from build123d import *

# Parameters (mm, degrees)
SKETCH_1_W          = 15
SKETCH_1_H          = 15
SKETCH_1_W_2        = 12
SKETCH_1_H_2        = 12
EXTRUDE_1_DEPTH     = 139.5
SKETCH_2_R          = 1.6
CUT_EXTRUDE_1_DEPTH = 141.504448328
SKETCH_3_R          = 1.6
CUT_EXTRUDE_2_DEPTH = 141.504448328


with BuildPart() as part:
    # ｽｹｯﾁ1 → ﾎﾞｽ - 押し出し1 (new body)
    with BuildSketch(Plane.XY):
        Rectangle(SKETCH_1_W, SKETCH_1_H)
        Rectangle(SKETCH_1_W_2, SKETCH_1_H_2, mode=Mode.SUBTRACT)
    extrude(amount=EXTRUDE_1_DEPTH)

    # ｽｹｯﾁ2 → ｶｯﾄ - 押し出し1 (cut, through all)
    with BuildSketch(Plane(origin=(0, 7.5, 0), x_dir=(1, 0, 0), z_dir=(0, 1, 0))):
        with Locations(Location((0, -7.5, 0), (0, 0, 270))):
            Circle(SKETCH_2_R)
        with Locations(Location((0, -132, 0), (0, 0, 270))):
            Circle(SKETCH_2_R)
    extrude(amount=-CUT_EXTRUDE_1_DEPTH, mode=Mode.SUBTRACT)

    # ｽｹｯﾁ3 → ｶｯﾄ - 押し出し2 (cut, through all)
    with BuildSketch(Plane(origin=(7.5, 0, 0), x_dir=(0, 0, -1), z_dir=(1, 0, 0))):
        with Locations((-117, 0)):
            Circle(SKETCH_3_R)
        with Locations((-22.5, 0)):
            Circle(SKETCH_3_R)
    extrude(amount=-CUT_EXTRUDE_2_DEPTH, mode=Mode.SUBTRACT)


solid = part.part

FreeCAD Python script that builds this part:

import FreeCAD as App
import Part
import Sketcher
from FreeCAD import Vector

doc = App.newDocument("Part")
body = doc.addObject("PartDesign::Body", "Body")

# Sketch on XY plane
sketch1 = body.newObject("Sketcher::SketchObject", "Sketch")
sketch1.AttachmentSupport = (doc.getObject("XY_Plane"), [""])
sketch1.MapMode = "FlatFace"
sketch1.addGeometry([
    Part.LineSegment(Vector(-8, 8, 0), Vector(-8, -8, 0)),  # 0
    Part.LineSegment(Vector(-8, -8, 0), Vector(8, -8, 0)),  # 1
    Part.LineSegment(Vector(8, -8, 0), Vector(8, 8, 0)),  # 2
    Part.LineSegment(Vector(8, 8, 0), Vector(-8, 8, 0)),  # 3
    Part.LineSegment(Vector(6, -6, 0), Vector(-6, -6, 0)),  # 4
    Part.LineSegment(Vector(-6, -6, 0), Vector(-6, 6, 0)),  # 5
    Part.LineSegment(Vector(-6, 6, 0), Vector(6, 6, 0)),  # 6
    Part.LineSegment(Vector(6, 6, 0), Vector(6, -6, 0)),  # 7
], False)
sketch1.addConstraint([
    Sketcher.Constraint("Coincident", 0, 2, 1, 1),
    Sketcher.Constraint("Coincident", 1, 2, 2, 1),
    Sketcher.Constraint("Coincident", 2, 2, 3, 1),
    Sketcher.Constraint("Coincident", 3, 2, 0, 1),
    Sketcher.Constraint("Coincident", 4, 2, 5, 1),
    Sketcher.Constraint("Coincident", 5, 2, 6, 1),
    Sketcher.Constraint("Coincident", 6, 2, 7, 1),
    Sketcher.Constraint("Coincident", 7, 2, 4, 1),
    Sketcher.Constraint("Vertical", 0),
    Sketcher.Constraint("Horizontal", 1),
    Sketcher.Constraint("Vertical", 2),
    Sketcher.Constraint("Horizontal", 3),
    Sketcher.Constraint("Horizontal", 4),
    Sketcher.Constraint("Vertical", 5),
    Sketcher.Constraint("Horizontal", 6),
    Sketcher.Constraint("Vertical", 7),
    Sketcher.Constraint("Symmetric", 0, 2, 2, 2, -1, 1),
    Sketcher.Constraint("Symmetric", 4, 2, 6, 2, -1, 1),
    Sketcher.Constraint("Equal", 3, 0),
    Sketcher.Constraint("Equal", 6, 5),
    Sketcher.Constraint("DistanceX", 1, 1, 1, 2, 15.0),
    Sketcher.Constraint("DistanceX", 4, 2, 4, 1, 12.0),
])
pad1 = body.newObject("PartDesign::Pad", "Pad")
pad1.Profile = sketch1
pad1.Length = 139.5

# Sketch on XZ plane
sketch2 = body.newObject("Sketcher::SketchObject", "Sketch001")
sketch2.AttachmentSupport = (doc.getObject("XZ_Plane"), [""])
sketch2.MapMode = "FlatFace"
sketch2.AttachmentOffset = App.Placement(Vector(0, 0, -7.5), App.Rotation())
sketch2.addGeometry([
    Part.Circle(Vector(0, 7.5, 0), Vector(0, 0, 1), 1.6),
    Part.Circle(Vector(0, 132, 0), Vector(0, 0, 1), 1.6),
], False)
sketch2.addConstraint([
    Sketcher.Constraint("Equal", 0, 1),
    Sketcher.Constraint("PointOnObject", 0, 3, -2),
    Sketcher.Constraint("PointOnObject", 1, 3, -2),
    Sketcher.Constraint("Diameter", 0, 3.2),
    Sketcher.Constraint("DistanceY", -1, 1, 1, 3, 132.0),
    Sketcher.Constraint("DistanceY", -1, 1, 0, 3, 7.5),
])
pocket1 = body.newObject("PartDesign::Pocket", "Pocket")
pocket1.Profile = sketch2
pocket1.Type = "ThroughAll"
pocket1.Reversed = True

# Sketch on YZ plane
sketch3 = body.newObject("Sketcher::SketchObject", "Sketch002")
sketch3.AttachmentSupport = (doc.getObject("YZ_Plane"), [""])
sketch3.MapMode = "FlatFace"
sketch3.AttachmentOffset = App.Placement(Vector(0, 0, 7.5), App.Rotation())
sketch3.addGeometry([
    Part.Circle(Vector(0, 117, 0), Vector(0, 0, 1), 1.6),
    Part.Circle(Vector(0, 22.5, 0), Vector(0, 0, 1), 1.6),
], False)
sketch3.addConstraint([
    Sketcher.Constraint("Equal", 0, 1),
    Sketcher.Constraint("PointOnObject", 0, 3, -2),
    Sketcher.Constraint("PointOnObject", 1, 3, -2),
    Sketcher.Constraint("Diameter", 0, 3.2),
    Sketcher.Constraint("DistanceY", -1, 1, 0, 3, 117.0),
    Sketcher.Constraint("DistanceY", -1, 1, 1, 3, 22.5),
])
pocket2 = body.newObject("PartDesign::Pocket", "Pocket001")
pocket2.Profile = sketch3
pocket2.Type = "ThroughAll"

doc.recompute()
